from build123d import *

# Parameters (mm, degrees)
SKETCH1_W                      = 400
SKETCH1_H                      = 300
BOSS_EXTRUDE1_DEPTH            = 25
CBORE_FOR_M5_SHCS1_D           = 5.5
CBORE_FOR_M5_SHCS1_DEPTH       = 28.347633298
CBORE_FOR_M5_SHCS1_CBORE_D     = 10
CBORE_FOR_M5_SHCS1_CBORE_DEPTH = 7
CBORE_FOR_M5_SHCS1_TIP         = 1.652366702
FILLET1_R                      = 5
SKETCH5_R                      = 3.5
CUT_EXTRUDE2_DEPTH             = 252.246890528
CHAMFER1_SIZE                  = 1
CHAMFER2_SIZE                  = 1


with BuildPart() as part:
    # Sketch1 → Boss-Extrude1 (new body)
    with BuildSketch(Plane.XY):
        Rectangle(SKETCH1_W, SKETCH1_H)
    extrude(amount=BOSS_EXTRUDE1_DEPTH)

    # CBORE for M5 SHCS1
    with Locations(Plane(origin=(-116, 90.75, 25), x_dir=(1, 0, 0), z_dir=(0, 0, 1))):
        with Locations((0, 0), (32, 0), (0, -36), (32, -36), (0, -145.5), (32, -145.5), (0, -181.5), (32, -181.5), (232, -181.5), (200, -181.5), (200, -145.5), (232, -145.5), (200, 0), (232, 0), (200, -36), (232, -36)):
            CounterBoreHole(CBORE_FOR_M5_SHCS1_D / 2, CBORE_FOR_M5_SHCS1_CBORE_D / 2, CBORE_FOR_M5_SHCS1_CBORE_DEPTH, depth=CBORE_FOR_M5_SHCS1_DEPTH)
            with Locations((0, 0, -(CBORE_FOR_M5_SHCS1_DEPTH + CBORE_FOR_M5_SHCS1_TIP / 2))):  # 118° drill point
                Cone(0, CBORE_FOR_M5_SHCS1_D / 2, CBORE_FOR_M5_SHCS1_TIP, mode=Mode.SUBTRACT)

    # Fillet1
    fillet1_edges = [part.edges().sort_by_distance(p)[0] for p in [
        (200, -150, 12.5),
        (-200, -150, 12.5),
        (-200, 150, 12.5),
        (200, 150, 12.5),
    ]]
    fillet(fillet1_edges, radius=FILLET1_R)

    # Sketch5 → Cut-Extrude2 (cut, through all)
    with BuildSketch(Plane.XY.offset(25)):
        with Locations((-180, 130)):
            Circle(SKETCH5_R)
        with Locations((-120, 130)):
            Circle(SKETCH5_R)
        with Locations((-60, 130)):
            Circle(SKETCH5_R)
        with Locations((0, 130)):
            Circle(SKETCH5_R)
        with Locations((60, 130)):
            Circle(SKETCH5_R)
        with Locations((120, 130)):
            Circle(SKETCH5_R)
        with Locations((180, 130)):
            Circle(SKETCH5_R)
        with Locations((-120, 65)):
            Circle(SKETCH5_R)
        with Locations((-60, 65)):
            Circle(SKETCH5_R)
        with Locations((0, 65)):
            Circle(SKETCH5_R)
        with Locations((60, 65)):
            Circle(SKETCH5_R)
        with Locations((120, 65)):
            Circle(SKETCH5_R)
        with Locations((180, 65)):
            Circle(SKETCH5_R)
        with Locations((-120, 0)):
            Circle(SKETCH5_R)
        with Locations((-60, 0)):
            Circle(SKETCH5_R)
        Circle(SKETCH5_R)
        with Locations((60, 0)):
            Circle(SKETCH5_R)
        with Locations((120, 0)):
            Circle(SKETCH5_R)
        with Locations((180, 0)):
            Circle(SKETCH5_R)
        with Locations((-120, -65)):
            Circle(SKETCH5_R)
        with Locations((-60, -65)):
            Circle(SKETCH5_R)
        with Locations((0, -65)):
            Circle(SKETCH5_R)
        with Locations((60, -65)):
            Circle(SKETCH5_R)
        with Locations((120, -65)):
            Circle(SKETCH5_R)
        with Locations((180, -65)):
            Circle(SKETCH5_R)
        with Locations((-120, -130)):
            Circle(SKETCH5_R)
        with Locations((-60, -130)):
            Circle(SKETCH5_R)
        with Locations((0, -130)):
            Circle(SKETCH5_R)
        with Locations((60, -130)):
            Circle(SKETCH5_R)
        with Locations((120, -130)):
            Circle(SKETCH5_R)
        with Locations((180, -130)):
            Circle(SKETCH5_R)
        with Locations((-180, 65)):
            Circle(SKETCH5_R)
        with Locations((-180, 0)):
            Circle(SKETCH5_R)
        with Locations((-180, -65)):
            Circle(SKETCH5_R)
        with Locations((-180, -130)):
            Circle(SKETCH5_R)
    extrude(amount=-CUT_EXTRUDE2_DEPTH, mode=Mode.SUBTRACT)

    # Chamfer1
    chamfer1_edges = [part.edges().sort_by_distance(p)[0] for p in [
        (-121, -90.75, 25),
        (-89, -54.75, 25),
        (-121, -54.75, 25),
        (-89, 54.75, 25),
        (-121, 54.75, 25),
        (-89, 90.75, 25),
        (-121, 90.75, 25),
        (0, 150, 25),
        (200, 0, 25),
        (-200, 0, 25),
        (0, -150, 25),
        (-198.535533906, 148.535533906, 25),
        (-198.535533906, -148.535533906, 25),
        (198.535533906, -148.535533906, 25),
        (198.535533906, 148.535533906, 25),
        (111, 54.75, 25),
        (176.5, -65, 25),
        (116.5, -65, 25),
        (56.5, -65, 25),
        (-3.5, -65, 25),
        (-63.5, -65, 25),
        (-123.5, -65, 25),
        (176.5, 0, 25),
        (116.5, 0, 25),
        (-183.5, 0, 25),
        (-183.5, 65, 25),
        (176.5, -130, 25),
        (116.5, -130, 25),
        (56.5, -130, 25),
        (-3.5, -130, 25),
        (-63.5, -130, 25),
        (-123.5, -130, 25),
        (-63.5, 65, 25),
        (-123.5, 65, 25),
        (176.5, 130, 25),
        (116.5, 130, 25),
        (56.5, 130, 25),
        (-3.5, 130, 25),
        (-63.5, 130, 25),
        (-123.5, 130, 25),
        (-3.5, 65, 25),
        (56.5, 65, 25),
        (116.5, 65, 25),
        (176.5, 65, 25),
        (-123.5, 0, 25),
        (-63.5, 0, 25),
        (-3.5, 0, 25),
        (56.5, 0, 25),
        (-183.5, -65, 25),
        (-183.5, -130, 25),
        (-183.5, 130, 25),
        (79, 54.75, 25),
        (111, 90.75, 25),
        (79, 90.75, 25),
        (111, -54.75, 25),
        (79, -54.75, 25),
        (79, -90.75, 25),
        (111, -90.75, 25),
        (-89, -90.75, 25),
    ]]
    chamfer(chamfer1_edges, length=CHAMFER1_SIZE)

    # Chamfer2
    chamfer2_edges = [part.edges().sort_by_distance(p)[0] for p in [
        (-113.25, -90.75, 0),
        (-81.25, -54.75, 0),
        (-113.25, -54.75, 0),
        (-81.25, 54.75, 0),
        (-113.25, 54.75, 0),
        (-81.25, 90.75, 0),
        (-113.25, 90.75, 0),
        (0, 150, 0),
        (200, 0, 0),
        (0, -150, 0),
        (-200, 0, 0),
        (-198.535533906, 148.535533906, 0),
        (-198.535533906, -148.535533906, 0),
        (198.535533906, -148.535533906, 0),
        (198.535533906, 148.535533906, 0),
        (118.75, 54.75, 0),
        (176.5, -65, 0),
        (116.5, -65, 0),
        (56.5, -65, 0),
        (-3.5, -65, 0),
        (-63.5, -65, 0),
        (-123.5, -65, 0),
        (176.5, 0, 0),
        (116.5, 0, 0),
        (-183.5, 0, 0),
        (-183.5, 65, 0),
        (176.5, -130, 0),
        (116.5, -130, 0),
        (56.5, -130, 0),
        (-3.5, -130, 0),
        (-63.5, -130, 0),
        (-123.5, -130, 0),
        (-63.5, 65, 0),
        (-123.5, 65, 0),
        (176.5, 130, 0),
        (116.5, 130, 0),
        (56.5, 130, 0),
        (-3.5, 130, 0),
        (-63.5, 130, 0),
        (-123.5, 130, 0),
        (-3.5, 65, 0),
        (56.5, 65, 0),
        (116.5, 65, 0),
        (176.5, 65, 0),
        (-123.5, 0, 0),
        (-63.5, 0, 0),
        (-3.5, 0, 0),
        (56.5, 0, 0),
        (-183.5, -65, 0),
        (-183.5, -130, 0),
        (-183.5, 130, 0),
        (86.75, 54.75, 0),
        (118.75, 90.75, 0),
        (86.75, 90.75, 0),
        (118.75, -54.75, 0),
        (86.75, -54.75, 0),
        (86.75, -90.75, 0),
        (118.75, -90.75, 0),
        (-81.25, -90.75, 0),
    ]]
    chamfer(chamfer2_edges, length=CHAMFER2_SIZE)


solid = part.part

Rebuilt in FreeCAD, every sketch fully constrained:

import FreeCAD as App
import Part
import Sketcher
from FreeCAD import Vector


def edges_at(feature, points):
    """Names of the edges that pass closest to the given points."""
    edges = feature.Shape.Edges
    near = lambda p: min(range(len(edges)), key=lambda i: edges[i].distToShape(Part.Vertex(*p))[0])
    return sorted({f"Edge{near(p) + 1}" for p in points})

doc = App.newDocument("Part")
body = doc.addObject("PartDesign::Body", "Body")

# Sketch on XY plane
sketch1 = body.newObject("Sketcher::SketchObject", "Sketch")
sketch1.AttachmentSupport = (doc.getObject("XY_Plane"), [""])
sketch1.MapMode = "FlatFace"
sketch1.addGeometry([
    Part.LineSegment(Vector(-200, 150, 0), Vector(-200, -150, 0)),
    Part.LineSegment(Vector(-200, -150, 0), Vector(200, -150, 0)),
    Part.LineSegment(Vector(200, -150, 0), Vector(200, 150, 0)),
    Part.LineSegment(Vector(200, 150, 0), Vector(-200, 150, 0)),
], False)
sketch1.addConstraint([
    Sketcher.Constraint("Coincident", 0, 2, 1, 1),
    Sketcher.Constraint("Coincident", 1, 2, 2, 1),
    Sketcher.Constraint("Coincident", 2, 2, 3, 1),
    Sketcher.Constraint("Coincident", 3, 2, 0, 1),
    Sketcher.Constraint("Vertical", 0),
    Sketcher.Constraint("Horizontal", 1),
    Sketcher.Constraint("Vertical", 2),
    Sketcher.Constraint("Horizontal", 3),
    Sketcher.Constraint("Symmetric", 0, 2, 2, 2, -1, 1),
    Sketcher.Constraint("DistanceX", 1, 1, 1, 2, 400.0),
    Sketcher.Constraint("DistanceY", 0, 2, 0, 1, 300.0),
])
pad1 = body.newObject("PartDesign::Pad", "Pad")
pad1.Profile = sketch1
pad1.Length = 25

# Sketch on XY plane
sketch2 = body.newObject("Sketcher::SketchObject", "Sketch001")
sketch2.AttachmentSupport = (doc.getObject("XY_Plane"), [""])
sketch2.MapMode = "FlatFace"
sketch2.AttachmentOffset = App.Placement(Vector(0, 0, 25), App.Rotation())
sketch2.addGeometry([
    Part.Circle(Vector(-116, 90.8, 0), Vector(0, 0, 1), 2.8),  # 0
    Part.Circle(Vector(-84, 90.8, 0), Vector(0, 0, 1), 2.8),  # 1
    Part.Circle(Vector(-116, 54.8, 0), Vector(0, 0, 1), 2.8),  # 2
    Part.Circle(Vector(-84, 54.8, 0), Vector(0, 0, 1), 2.8),  # 3
    Part.Circle(Vector(-116, -54.8, 0), Vector(0, 0, 1), 2.8),  # 4
    Part.Circle(Vector(-84, -54.8, 0), Vector(0, 0, 1), 2.8),  # 5
    Part.Circle(Vector(-116, -90.8, 0), Vector(0, 0, 1), 2.8),  # 6
    Part.Circle(Vector(-84, -90.8, 0), Vector(0, 0, 1), 2.8),  # 7
    Part.Circle(Vector(116, -90.8, 0), Vector(0, 0, 1), 2.8),  # 8
    Part.Circle(Vector(84, -90.8, 0), Vector(0, 0, 1), 2.8),  # 9
    Part.Circle(Vector(84, -54.8, 0), Vector(0, 0, 1), 2.8),  # 10
    Part.Circle(Vector(116, -54.8, 0), Vector(0, 0, 1), 2.8),  # 11
    Part.Circle(Vector(84, 90.8, 0), Vector(0, 0, 1), 2.8),  # 12
    Part.Circle(Vector(116, 90.8, 0), Vector(0, 0, 1), 2.8),  # 13
    Part.Circle(Vector(84, 54.8, 0), Vector(0, 0, 1), 2.8),  # 14
    Part.Circle(Vector(116, 54.8, 0), Vector(0, 0, 1), 2.8),  # 15
], False)
sketch2.addConstraint([
    Sketcher.Constraint("Equal", 0, 1),
    Sketcher.Constraint("Equal", 1, 2),
    Sketcher.Constraint("Equal", 2, 3),
    Sketcher.Constraint("Equal", 3, 4),
    Sketcher.Constraint("Equal", 4, 5),
    Sketcher.Constraint("Equal", 5, 6),
    Sketcher.Constraint("Equal", 6, 7),
    Sketcher.Constraint("Equal", 7, 8),
    Sketcher.Constraint("Equal", 8, 9),
    Sketcher.Constraint("Equal", 9, 10),
    Sketcher.Constraint("Equal", 10, 11),
    Sketcher.Constraint("Equal", 11, 12),
    Sketcher.Constraint("Equal", 12, 13),
    Sketcher.Constraint("Equal", 13, 14),
    Sketcher.Constraint("Equal", 14, 15),
    Sketcher.Constraint("Symmetric", 0, 3, 8, 3, -1, 1),
    Sketcher.Constraint("Symmetric", 1, 3, 9, 3, -1, 1),
    Sketcher.Constraint("Symmetric", 3, 3, 10, 3, -1, 1),
    Sketcher.Constraint("Symmetric", 2, 3, 11, 3, -1, 1),
    Sketcher.Constraint("Symmetric", 7, 3, 12, 3, -1, 1),
    Sketcher.Constraint("Symmetric", 6, 3, 13, 3, -1, 1),
    Sketcher.Constraint("Symmetric", 5, 3, 14, 3, -1, 1),
    Sketcher.Constraint("Symmetric", 4, 3, 15, 3, -1, 1),
    Sketcher.Constraint("Symmetric", 6, 3, 8, 3, -2),
    Sketcher.Constraint("Symmetric", 7, 3, 9, 3, -2),
    Sketcher.Constraint("Symmetric", 5, 3, 10, 3, -2),
    Sketcher.Constraint("Symmetric", 4, 3, 11, 3, -2),
    Sketcher.Constraint("Horizontal", 0, 3, 1, 3),
    Sketcher.Constraint("Horizontal", 2, 3, 3, 3),
    Sketcher.Constraint("Vertical", 0, 3, 2, 3),
    Sketcher.Constraint("Vertical", 1, 3, 3, 3),
    Sketcher.Constraint("Diameter", 0, 5.5),
    Sketcher.Constraint("DistanceX", 0, 3, -1, 1, 116.0),
    Sketcher.Constraint("DistanceX", 1, 3, -1, 1, 84.0),
    Sketcher.Constraint("DistanceY", 2, 3, 0, 3, 36.0),
    Sketcher.Constraint("DistanceY", 4, 3, 2, 3, 109.5),
])
doc.recompute()
hole = body.newObject("PartDesign::Hole", "Hole")
hole.Profile = sketch2
hole.ThreadType = "None"
hole.Diameter = 5.5
hole.DepthType = "Dimension"
hole.Depth = 28.347633
hole.DrillPoint = "Angled"
hole.DrillPointAngle = 118
hole.HoleCutType = "Counterbore"
hole.HoleCutDiameter = 10
hole.HoleCutDepth = 7
doc.recompute()

fillet = body.newObject("PartDesign::Fillet", "Fillet")
fillet.Base = (hole, edges_at(hole, [
    (200, -150, 12.5),
    (-200, -150, 12.5),
    (-200, 150, 12.5),
    (200, 150, 12.5),
]))
fillet.Radius = 5

# Sketch on XY plane
sketch3 = body.newObject("Sketcher::SketchObject", "Sketch002")
sketch3.AttachmentSupport = (doc.getObject("XY_Plane"), [""])
sketch3.MapMode = "FlatFace"
sketch3.AttachmentOffset = App.Placement(Vector(0, 0, 25), App.Rotation())
sketch3.addGeometry([
    Part.Circle(Vector(-180, 130, 0), Vector(0, 0, 1), 3.5),  # 0
    Part.Circle(Vector(-120, 130, 0), Vector(0, 0, 1), 3.5),  # 1
    Part.Circle(Vector(-60, 130, 0), Vector(0, 0, 1), 3.5),  # 2
    Part.Circle(Vector(0, 130, 0), Vector(0, 0, 1), 3.5),  # 3
    Part.Circle(Vector(60, 130, 0), Vector(0, 0, 1), 3.5),  # 4
    Part.Circle(Vector(120, 130, 0), Vector(0, 0, 1), 3.5),  # 5
    Part.Circle(Vector(180, 130, 0), Vector(0, 0, 1), 3.5),  # 6
    Part.Circle(Vector(-120, 65, 0), Vector(0, 0, 1), 3.5),  # 7
    Part.Circle(Vector(-60, 65, 0), Vector(0, 0, 1), 3.5),  # 8
    Part.Circle(Vector(0, 65, 0), Vector(0, 0, 1), 3.5),  # 9
    Part.Circle(Vector(60, 65, 0), Vector(0, 0, 1), 3.5),  # 10
    Part.Circle(Vector(120, 65, 0), Vector(0, 0, 1), 3.5),  # 11
    Part.Circle(Vector(180, 65, 0), Vector(0, 0, 1), 3.5),  # 12
    Part.Circle(Vector(-120, 0, 0), Vector(0, 0, 1), 3.5),  # 13
    Part.Circle(Vector(-60, 0, 0), Vector(0, 0, 1), 3.5),  # 14
    Part.Circle(Vector(0, 0, 0), Vector(0, 0, 1), 3.5),  # 15
    Part.Circle(Vector(60, 0, 0), Vector(0, 0, 1), 3.5),  # 16
    Part.Circle(Vector(120, 0, 0), Vector(0, 0, 1), 3.5),  # 17
    Part.Circle(Vector(180, 0, 0), Vector(0, 0, 1), 3.5),  # 18
    Part.Circle(Vector(-120, -65, 0), Vector(0, 0, 1), 3.5),  # 19
    Part.Circle(Vector(-60, -65, 0), Vector(0, 0, 1), 3.5),  # 20
    Part.Circle(Vector(0, -65, 0), Vector(0, 0, 1), 3.5),  # 21
    Part.Circle(Vector(60, -65, 0), Vector(0, 0, 1), 3.5),  # 22
    Part.Circle(Vector(120, -65, 0), Vector(0, 0, 1), 3.5),  # 23
    Part.Circle(Vector(180, -65, 0), Vector(0, 0, 1), 3.5),  # 24
    Part.Circle(Vector(-120, -130, 0), Vector(0, 0, 1), 3.5),  # 25
    Part.Circle(Vector(-60, -130, 0), Vector(0, 0, 1), 3.5),  # 26
    Part.Circle(Vector(0, -130, 0), Vector(0, 0, 1), 3.5),  # 27
    Part.Circle(Vector(60, -130, 0), Vector(0, 0, 1), 3.5),  # 28
    Part.Circle(Vector(120, -130, 0), Vector(0, 0, 1), 3.5),  # 29
    Part.Circle(Vector(180, -130, 0), Vector(0, 0, 1), 3.5),  # 30
    Part.Circle(Vector(-180, 65, 0), Vector(0, 0, 1), 3.5),  # 31
    Part.Circle(Vector(-180, 0, 0), Vector(0, 0, 1), 3.5),  # 32
    Part.Circle(Vector(-180, -65, 0), Vector(0, 0, 1), 3.5),  # 33
    Part.Circle(Vector(-180, -130, 0), Vector(0, 0, 1), 3.5),  # 34
], False)
sketch3.addConstraint([
    Sketcher.Constraint("Coincident", 15, 3, -1, 1),
    Sketcher.Constraint("Equal", 0, 1),
    Sketcher.Constraint("Equal", 1, 2),
    Sketcher.Constraint("Equal", 2, 3),
    Sketcher.Constraint("Equal", 3, 4),
    Sketcher.Constraint("Equal", 4, 5),
    Sketcher.Constraint("Equal", 5, 6),
    Sketcher.Constraint("Equal", 6, 7),
    Sketcher.Constraint("Equal", 7, 8),
    Sketcher.Constraint("Equal", 8, 9),
    Sketcher.Constraint("Equal", 9, 10),
    Sketcher.Constraint("Equal", 10, 11),
    Sketcher.Constraint("Equal", 11, 12),
    Sketcher.Constraint("Equal", 12, 13),
    Sketcher.Constraint("Equal", 13, 14),
    Sketcher.Constraint("Equal", 14, 15),
    Sketcher.Constraint("Equal", 15, 16),
    Sketcher.Constraint("Equal", 16, 17),
    Sketcher.Constraint("Equal", 17, 18),
    Sketcher.Constraint("Equal", 18, 19),
    Sketcher.Constraint("Equal", 19, 20),
    Sketcher.Constraint("Equal", 20, 21),
    Sketcher.Constraint("Equal", 21, 22),
    Sketcher.Constraint("Equal", 22, 23),
    Sketcher.Constraint("Equal", 23, 24),
    Sketcher.Constraint("Equal", 24, 25),
    Sketcher.Constraint("Equal", 25, 26),
    Sketcher.Constraint("Equal", 26, 27),
    Sketcher.Constraint("Equal", 27, 28),
    Sketcher.Constraint("Equal", 28, 29),
    Sketcher.Constraint("Equal", 29, 30),
    Sketcher.Constraint("Equal", 30, 31),
    Sketcher.Constraint("Equal", 31, 32),
    Sketcher.Constraint("Equal", 32, 33),
    Sketcher.Constraint("Equal", 33, 34),
    Sketcher.Constraint("Symmetric", 14, 3, 16, 3, -1, 1),
    Sketcher.Constraint("Symmetric", 13, 3, 17, 3, -1, 1),
    Sketcher.Constraint("Symmetric", 11, 3, 19, 3, -1, 1),
    Sketcher.Constraint("Symmetric", 10, 3, 20, 3, -1, 1),
    Sketcher.Constraint("Symmetric", 9, 3, 21, 3, -1, 1),
    Sketcher.Constraint("Symmetric", 8, 3, 22, 3, -1, 1),
    Sketcher.Constraint("Symmetric", 7, 3, 23, 3, -1, 1),
    Sketcher.Constraint("Symmetric", 5, 3, 25, 3, -1, 1),
    Sketcher.Constraint("Symmetric", 4, 3, 26, 3, -1, 1),
    Sketcher.Constraint("Symmetric", 3, 3, 27, 3, -1, 1),
    Sketcher.Constraint("Symmetric", 2, 3, 28, 3, -1, 1),
    Sketcher.Constraint("Symmetric", 1, 3, 29, 3, -1, 1),
    Sketcher.Constraint("Symmetric", 0, 3, 30, 3, -1, 1),
    Sketcher.Constraint("Symmetric", 24, 3, 31, 3, -1, 1),
    Sketcher.Constraint("Symmetric", 18, 3, 32, 3, -1, 1),
    Sketcher.Constraint("Symmetric", 12, 3, 33, 3, -1, 1),
    Sketcher.Constraint("Symmetric", 6, 3, 34, 3, -1, 1),
    Sketcher.Constraint("Symmetric", 2, 3, 4, 3, -2),
    Sketcher.Constraint("Symmetric", 1, 3, 5, 3, -2),
    Sketcher.Constraint("Symmetric", 0, 3, 6, 3, -2),
    Sketcher.Constraint("Symmetric", 8, 3, 10, 3, -2),
    Sketcher.Constraint("Symmetric", 7, 3, 11, 3, -2),
    Sketcher.Constraint("Symmetric", 12, 3, 31, 3, -2),
    Sketcher.Constraint("PointOnObject", 3, 3, -2),
    Sketcher.Constraint("PointOnObject", 9, 3, -2),
    Sketcher.Constraint("PointOnObject", 13, 3, -1),
    Sketcher.Constraint("PointOnObject", 14, 3, -1),
    Sketcher.Constraint("PointOnObject", 18, 3, -1),
    Sketcher.Constraint("Horizontal", 0, 3, 1, 3),
    Sketcher.Constraint("Horizontal", 1, 3, 2, 3),
    Sketcher.Constraint("Horizontal", 2, 3, 3, 3),
    Sketcher.Constraint("Horizontal", 7, 3, 8, 3),
    Sketcher.Constraint("Horizontal", 8, 3, 9, 3),
    Sketcher.Constraint("Horizontal", 11, 3, 12, 3),
    Sketcher.Constraint("Vertical", 1, 3, 7, 3),
    Sketcher.Constraint("Vertical", 2, 3, 8, 3),
    Sketcher.Constraint("Vertical", 6, 3, 12, 3),
    Sketcher.Constraint("Vertical", 7, 3, 13, 3),
    Sketcher.Constraint("Vertical", 8, 3, 14, 3),
    Sketcher.Constraint("Vertical", 12, 3, 18, 3),
    Sketcher.Constraint("Diameter", 0, 7.0),
    Sketcher.Constraint("DistanceX", 0, 3, -1, 1, 180.0),
    Sketcher.Constraint("DistanceY", -1, 1, 0, 3, 130.0),
    Sketcher.Constraint("DistanceX", 1, 3, -1, 1, 120.0),
    Sketcher.Constraint("DistanceX", 2, 3, -1, 1, 60.0),
    Sketcher.Constraint("DistanceY", -1, 1, 7, 3, 65.0),
])
pocket1 = body.newObject("PartDesign::Pocket", "Pocket")
pocket1.Profile = sketch3
pocket1.Type = "ThroughAll"
doc.recompute()

chamfer = body.newObject("PartDesign::Chamfer", "Chamfer")
chamfer.Base = (pocket1, edges_at(pocket1, [
    (-121, -90.75, 25),
    (-89, -54.75, 25),
    (-121, -54.75, 25),
    (-89, 54.75, 25),
    (-121, 54.75, 25),
    (-89, 90.75, 25),
    (-121, 90.75, 25),
    (0, 150, 25),
    (200, 0, 25),
    (-200, 0, 25),
    (0, -150, 25),
    (-198.536, 148.536, 25),
    (-198.536, -148.536, 25),
    (198.536, -148.536, 25),
    (198.536, 148.536, 25),
    (111, 54.75, 25),
    (176.5, -65, 25),
    (116.5, -65, 25),
    (56.5, -65, 25),
    (-3.5, -65, 25),
    (-63.5, -65, 25),
    (-123.5, -65, 25),
    (176.5, 0, 25),
    (116.5, 0, 25),
    (-183.5, 0, 25),
    (-183.5, 65, 25),
    (176.5, -130, 25),
    (116.5, -130, 25),
    (56.5, -130, 25),
    (-3.5, -130, 25),
    (-63.5, -130, 25),
    (-123.5, -130, 25),
    (-63.5, 65, 25),
    (-123.5, 65, 25),
    (176.5, 130, 25),
    (116.5, 130, 25),
    (56.5, 130, 25),
    (-3.5, 130, 25),
    (-63.5, 130, 25),
    (-123.5, 130, 25),
    (-3.5, 65, 25),
    (56.5, 65, 25),
    (116.5, 65, 25),
    (176.5, 65, 25),
    (-123.5, 0, 25),
    (-63.5, 0, 25),
    (-3.5, 0, 25),
    (56.5, 0, 25),
    (-183.5, -65, 25),
    (-183.5, -130, 25),
    (-183.5, 130, 25),
    (79, 54.75, 25),
    (111, 90.75, 25),
    (79, 90.75, 25),
    (111, -54.75, 25),
    (79, -54.75, 25),
    (79, -90.75, 25),
    (111, -90.75, 25),
    (-89, -90.75, 25),
]))
chamfer.Size = 1
doc.recompute()

chamfer2 = body.newObject("PartDesign::Chamfer", "Chamfer001")
chamfer2.Base = (chamfer, edges_at(chamfer, [
    (-113.25, -90.75, 0),
    (-81.25, -54.75, 0),
    (-113.25, -54.75, 0),
    (-81.25, 54.75, 0),
    (-113.25, 54.75, 0),
    (-81.25, 90.75, 0),
    (-113.25, 90.75, 0),
    (0, 150, 0),
    (200, 0, 0),
    (0, -150, 0),
    (-200, 0, 0),
    (-198.536, 148.536, 0),
    (-198.536, -148.536, 0),
    (198.536, -148.536, 0),
    (198.536, 148.536, 0),
    (118.75, 54.75, 0),
    (176.5, -65, 0),
    (116.5, -65, 0),
    (56.5, -65, 0),
    (-3.5, -65, 0),
    (-63.5, -65, 0),
    (-123.5, -65, 0),
    (176.5, 0, 0),
    (116.5, 0, 0),
    (-183.5, 0, 0),
    (-183.5, 65, 0),
    (176.5, -130, 0),
    (116.5, -130, 0),
    (56.5, -130, 0),
    (-3.5, -130, 0),
    (-63.5, -130, 0),
    (-123.5, -130, 0),
    (-63.5, 65, 0),
    (-123.5, 65, 0),
    (176.5, 130, 0),
    (116.5, 130, 0),
    (56.5, 130, 0),
    (-3.5, 130, 0),
    (-63.5, 130, 0),
    (-123.5, 130, 0),
    (-3.5, 65, 0),
    (56.5, 65, 0),
    (116.5, 65, 0),
    (176.5, 65, 0),
    (-123.5, 0, 0),
    (-63.5, 0, 0),
    (-3.5, 0, 0),
    (56.5, 0, 0),
    (-183.5, -65, 0),
    (-183.5, -130, 0),
    (-183.5, 130, 0),
    (86.75, 54.75, 0),
    (118.75, 90.75, 0),
    (86.75, 90.75, 0),
    (118.75, -54.75, 0),
    (86.75, -54.75, 0),
    (86.75, -90.75, 0),
    (118.75, -90.75, 0),
    (-81.25, -90.75, 0),
]))
chamfer2.Size = 1

doc.recompute()
